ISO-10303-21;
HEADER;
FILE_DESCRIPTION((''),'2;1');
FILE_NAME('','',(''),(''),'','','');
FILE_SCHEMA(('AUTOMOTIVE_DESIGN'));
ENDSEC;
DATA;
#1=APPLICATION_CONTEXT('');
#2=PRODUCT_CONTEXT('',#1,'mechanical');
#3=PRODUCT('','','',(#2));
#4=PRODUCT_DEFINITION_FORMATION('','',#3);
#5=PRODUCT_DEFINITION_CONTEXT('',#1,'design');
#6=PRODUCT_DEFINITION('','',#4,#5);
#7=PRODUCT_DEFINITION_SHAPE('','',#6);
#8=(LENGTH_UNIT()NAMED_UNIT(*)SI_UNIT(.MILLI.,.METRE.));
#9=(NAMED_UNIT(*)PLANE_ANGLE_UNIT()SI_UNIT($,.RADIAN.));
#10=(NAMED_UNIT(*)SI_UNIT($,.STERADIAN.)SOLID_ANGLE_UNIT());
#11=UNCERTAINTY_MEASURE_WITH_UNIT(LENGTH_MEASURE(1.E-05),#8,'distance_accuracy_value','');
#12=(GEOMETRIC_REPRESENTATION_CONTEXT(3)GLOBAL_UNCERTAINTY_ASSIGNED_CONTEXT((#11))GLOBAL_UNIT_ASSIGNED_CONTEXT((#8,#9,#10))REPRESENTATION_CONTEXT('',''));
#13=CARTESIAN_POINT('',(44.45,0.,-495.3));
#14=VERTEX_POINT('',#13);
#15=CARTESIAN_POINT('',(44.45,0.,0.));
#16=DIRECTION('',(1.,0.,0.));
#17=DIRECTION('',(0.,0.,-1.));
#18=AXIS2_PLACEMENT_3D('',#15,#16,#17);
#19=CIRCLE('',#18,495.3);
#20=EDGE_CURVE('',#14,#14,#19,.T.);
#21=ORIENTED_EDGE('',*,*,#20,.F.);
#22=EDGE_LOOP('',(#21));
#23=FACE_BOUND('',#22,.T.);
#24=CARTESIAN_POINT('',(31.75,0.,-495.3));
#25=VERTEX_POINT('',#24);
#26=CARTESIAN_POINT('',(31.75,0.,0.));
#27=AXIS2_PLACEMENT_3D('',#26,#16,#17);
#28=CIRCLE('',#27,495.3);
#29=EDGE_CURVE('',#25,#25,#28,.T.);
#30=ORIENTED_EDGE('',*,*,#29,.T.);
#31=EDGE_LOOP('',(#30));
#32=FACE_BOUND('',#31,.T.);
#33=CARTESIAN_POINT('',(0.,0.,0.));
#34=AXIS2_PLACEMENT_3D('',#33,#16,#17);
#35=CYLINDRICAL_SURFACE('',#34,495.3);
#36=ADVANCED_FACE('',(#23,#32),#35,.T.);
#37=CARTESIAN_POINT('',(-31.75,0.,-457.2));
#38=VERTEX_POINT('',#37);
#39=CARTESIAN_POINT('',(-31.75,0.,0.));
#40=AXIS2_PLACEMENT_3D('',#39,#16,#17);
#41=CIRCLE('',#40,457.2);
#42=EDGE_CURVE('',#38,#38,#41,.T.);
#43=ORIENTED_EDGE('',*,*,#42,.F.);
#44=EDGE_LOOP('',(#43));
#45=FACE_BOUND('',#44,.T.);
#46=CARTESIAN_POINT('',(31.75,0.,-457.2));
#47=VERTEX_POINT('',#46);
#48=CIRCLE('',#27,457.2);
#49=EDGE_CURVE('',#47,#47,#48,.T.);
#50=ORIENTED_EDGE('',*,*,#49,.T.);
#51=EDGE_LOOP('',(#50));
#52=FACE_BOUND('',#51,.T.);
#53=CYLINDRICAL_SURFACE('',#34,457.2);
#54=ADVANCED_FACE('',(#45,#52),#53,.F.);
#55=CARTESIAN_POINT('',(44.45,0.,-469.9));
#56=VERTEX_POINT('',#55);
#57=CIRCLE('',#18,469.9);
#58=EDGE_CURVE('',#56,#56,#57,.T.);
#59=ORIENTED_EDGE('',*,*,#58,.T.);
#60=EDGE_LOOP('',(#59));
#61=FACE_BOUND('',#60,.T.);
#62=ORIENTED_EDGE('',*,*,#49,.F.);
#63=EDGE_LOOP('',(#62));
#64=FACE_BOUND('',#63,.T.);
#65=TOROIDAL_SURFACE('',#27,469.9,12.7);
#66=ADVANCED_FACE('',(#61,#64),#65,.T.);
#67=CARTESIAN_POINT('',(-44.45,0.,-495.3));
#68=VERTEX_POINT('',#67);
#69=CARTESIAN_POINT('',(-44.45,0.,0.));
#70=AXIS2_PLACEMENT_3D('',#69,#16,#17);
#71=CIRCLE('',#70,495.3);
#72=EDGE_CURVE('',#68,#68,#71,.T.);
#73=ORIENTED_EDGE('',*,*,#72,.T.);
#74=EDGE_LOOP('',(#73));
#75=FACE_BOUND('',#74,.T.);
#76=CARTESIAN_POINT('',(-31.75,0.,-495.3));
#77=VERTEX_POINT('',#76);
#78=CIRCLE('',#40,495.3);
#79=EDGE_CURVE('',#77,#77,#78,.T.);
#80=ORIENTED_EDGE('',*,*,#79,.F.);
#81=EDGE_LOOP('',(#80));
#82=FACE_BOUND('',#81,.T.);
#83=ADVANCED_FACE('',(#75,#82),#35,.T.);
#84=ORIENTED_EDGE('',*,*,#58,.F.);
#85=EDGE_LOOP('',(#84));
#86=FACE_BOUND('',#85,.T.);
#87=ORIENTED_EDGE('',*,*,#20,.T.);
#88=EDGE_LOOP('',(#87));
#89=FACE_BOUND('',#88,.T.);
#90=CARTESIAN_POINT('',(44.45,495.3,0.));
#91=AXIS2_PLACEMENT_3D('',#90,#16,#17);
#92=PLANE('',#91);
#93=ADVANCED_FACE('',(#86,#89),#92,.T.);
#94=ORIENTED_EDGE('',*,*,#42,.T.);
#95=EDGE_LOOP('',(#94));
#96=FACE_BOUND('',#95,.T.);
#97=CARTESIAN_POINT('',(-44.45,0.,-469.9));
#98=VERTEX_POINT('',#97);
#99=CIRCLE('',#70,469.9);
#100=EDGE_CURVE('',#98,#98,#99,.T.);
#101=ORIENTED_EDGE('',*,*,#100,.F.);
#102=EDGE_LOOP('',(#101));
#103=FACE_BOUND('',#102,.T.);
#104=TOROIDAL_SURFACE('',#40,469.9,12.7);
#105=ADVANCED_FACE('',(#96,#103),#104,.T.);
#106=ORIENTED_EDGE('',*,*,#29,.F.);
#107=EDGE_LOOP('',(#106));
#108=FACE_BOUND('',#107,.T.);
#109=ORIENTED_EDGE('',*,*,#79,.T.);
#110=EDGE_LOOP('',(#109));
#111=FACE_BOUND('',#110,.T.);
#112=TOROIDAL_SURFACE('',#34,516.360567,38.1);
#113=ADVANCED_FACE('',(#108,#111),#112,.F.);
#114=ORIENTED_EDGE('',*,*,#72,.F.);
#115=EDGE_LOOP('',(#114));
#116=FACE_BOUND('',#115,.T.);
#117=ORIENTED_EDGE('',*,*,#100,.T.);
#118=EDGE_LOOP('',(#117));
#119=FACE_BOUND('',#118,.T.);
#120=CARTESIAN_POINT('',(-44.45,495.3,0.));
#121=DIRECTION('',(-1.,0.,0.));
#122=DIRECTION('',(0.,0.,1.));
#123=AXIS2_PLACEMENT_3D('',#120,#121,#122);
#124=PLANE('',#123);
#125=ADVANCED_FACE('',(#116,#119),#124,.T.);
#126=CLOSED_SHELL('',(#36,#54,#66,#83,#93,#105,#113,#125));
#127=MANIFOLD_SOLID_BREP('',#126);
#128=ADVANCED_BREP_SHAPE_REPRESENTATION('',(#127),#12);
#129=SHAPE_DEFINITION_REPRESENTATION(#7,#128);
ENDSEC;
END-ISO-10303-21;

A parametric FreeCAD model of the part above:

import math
import FreeCAD as App
import Part
import Sketcher
from FreeCAD import Vector
Q = App.Units.Quantity

doc = App.newDocument("Part")
body = doc.addObject("PartDesign::Body", "Body")

# Sketch on XY plane
sketch1 = body.newObject("Sketcher::SketchObject", "Sketch")
sketch1.AttachmentSupport = (doc.getObject("XY_Plane"), [""])
sketch1.MapMode = "FlatFace"
sketch1.addGeometry([
    Part.LineSegment(Vector(44.45, 495.3, 0), Vector(31.75, 495.3, 0)),  # 0
    Part.ArcOfCircle(Part.Circle(Vector(0, 516.360567, 0), Vector(0, 0, 1), 38.1), math.radians(-146.44269), math.radians(-33.55731)),  # 1
    Part.LineSegment(Vector(-31.75, 495.3, 0), Vector(-44.45, 495.3, 0)),  # 2
    Part.LineSegment(Vector(-44.45, 495.3, 0), Vector(-44.45, 469.9, 0)),  # 3
    Part.ArcOfCircle(Part.Circle(Vector(-31.75, 469.9, 0), Vector(0, 0, 1), 12.7), math.radians(180), math.radians(270)),  # 4
    Part.LineSegment(Vector(-31.75, 457.2, 0), Vector(31.75, 457.2, 0)),  # 5
    Part.ArcOfCircle(Part.Circle(Vector(31.75, 469.9, 0), Vector(0, 0, 1), 12.7), math.radians(-90), math.radians(0)),  # 6
    Part.LineSegment(Vector(44.45, 469.9, 0), Vector(44.45, 495.3, 0)),  # 7
], False)
sketch1.addConstraint([
    Sketcher.Constraint("Coincident", 0, 2, 1, 2),
    Sketcher.Constraint("Coincident", 1, 1, 2, 1),
    Sketcher.Constraint("Coincident", 2, 2, 3, 1),
    Sketcher.Constraint("Tangent", 3, 2, 4, 1),
    Sketcher.Constraint("Tangent", 4, 2, 5, 1),
    Sketcher.Constraint("Tangent", 5, 2, 6, 1),
    Sketcher.Constraint("Tangent", 6, 2, 7, 1),
    Sketcher.Constraint("Coincident", 7, 2, 0, 1),
    Sketcher.Constraint("Horizontal", 0),
    Sketcher.Constraint("Horizontal", 2),
    Sketcher.Constraint("Vertical", 3),
    Sketcher.Constraint("Horizontal", 5),
    Sketcher.Constraint("Vertical", 7),
    Sketcher.Constraint("Equal", 4, 6),
    Sketcher.Constraint("Symmetric", 0, 2, 1, 1, -2),
    Sketcher.Constraint("Vertical", 6, 3, 0, 2),
    Sketcher.Constraint("Vertical", 4, 3, 1, 1),
    Sketcher.Constraint("Radius", 1, Q("1.5 in")),
    Sketcher.Constraint("Radius", 4, Q("0.5 in")),
    Sketcher.Constraint("DistanceY", 3, 2, 3, 1, Q("1 in")),
    Sketcher.Constraint("DistanceX", 5, 1, 5, 2, Q("2.5 in")),
    Sketcher.Constraint("DistanceY", -1, 1, 4, 2, Q("18 in")),
])
revolution = body.newObject("PartDesign::Revolution", "Revolution")
revolution.Profile = sketch1
revolution.ReferenceAxis = (sketch1, ["H_Axis"])
revolution.Angle = 360

doc.recompute()
